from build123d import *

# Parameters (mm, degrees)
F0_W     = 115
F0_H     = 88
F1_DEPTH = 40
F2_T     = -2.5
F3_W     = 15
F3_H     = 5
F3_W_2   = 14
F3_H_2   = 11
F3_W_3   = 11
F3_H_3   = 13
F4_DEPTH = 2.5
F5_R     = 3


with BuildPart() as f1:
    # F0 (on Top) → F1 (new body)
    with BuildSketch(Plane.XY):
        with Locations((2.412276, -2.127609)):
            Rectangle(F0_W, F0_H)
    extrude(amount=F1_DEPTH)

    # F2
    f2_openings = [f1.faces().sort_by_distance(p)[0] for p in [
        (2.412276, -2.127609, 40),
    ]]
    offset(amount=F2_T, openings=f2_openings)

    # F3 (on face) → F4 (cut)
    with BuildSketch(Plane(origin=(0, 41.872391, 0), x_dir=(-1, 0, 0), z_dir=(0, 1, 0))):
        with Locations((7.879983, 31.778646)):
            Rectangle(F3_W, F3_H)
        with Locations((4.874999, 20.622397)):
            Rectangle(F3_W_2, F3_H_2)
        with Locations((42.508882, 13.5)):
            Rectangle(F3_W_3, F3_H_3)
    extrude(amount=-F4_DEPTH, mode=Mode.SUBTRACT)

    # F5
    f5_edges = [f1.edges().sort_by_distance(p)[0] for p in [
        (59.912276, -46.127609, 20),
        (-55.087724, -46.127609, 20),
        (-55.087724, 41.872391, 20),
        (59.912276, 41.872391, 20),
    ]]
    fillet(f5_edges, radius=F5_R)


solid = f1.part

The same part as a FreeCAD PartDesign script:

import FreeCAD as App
import Part
import Sketcher
from FreeCAD import Vector
Q = App.Units.Quantity


def edges_at(feature, points):
    """Names of the edges that pass closest to the given points."""
    edges = feature.Shape.Edges
    near = lambda p: min(range(len(edges)), key=lambda i: edges[i].distToShape(Part.Vertex(*p))[0])
    return sorted({f"Edge{near(p) + 1}" for p in points})


def faces_at(feature, points):
    """Names of the faces that lie closest to the given points."""
    faces = feature.Shape.Faces
    near = lambda p: min(range(len(faces)), key=lambda i: faces[i].distToShape(Part.Vertex(*p))[0])
    return sorted({f"Face{near(p) + 1}" for p in points})

doc = App.newDocument("Part")
body = doc.addObject("PartDesign::Body", "Body")

sketch1 = body.newObject("Sketcher::SketchObject", "Sketch")
sketch1.AttachmentSupport = (doc.getObject("XY_Plane"), [""])
sketch1.MapMode = "FlatFace"
sketch1.addGeometry([
    Part.LineSegment(Vector(-55, 42, 0), Vector(-55, -46, 0)),
    Part.LineSegment(Vector(-55, -46, 0), Vector(60, -46, 0)),
    Part.LineSegment(Vector(60, -46, 0), Vector(60, 42, 0)),
    Part.LineSegment(Vector(60, 42, 0), Vector(-55, 42, 0)),
], False)
sketch1.addConstraint([
    Sketcher.Constraint("Coincident", 0, 2, 1, 1),
    Sketcher.Constraint("Coincident", 1, 2, 2, 1),
    Sketcher.Constraint("Coincident", 2, 2, 3, 1),
    Sketcher.Constraint("Coincident", 3, 2, 0, 1),
    Sketcher.Constraint("Vertical", 0),
    Sketcher.Constraint("Horizontal", 1),
    Sketcher.Constraint("Vertical", 2),
    Sketcher.Constraint("Horizontal", 3),
    Sketcher.Constraint("DistanceX", 1, 1, 1, 2, Q("115 mm")),
    Sketcher.Constraint("DistanceY", 0, 2, 0, 1, Q("88 mm")),
    Sketcher.Constraint("DistanceY", 0, 2, -1, 1, Q("46.127609 mm")),
    Sketcher.Constraint("DistanceX", 0, 2, -1, 1, Q("55.087724 mm")),
])
pad1 = body.newObject("PartDesign::Pad", "Pad")
pad1.Profile = sketch1
pad1.Length = 40
doc.recompute()

thickness = body.newObject("PartDesign::Thickness", "Thickness")
thickness.Base = (pad1, faces_at(pad1, [(2.412, -2.128, 40)]))
thickness.Value = 2.5
thickness.Reversed = True
thickness.Join = "Arc"

sketch2 = body.newObject("Sketcher::SketchObject", "Sketch001")
sketch2.AttachmentSupport = (doc.getObject("XZ_Plane"), [""])
sketch2.MapMode = "FlatFace"
sketch2.AttachmentOffset = App.Placement(Vector(0, 0, -41.872391), App.Rotation())
sketch2.addGeometry([
    Part.LineSegment(Vector(0, 34, 0), Vector(0, 29, 0)),
    Part.LineSegment(Vector(0, 29, 0), Vector(-15, 29, 0)),
    Part.LineSegment(Vector(-15, 29, 0), Vector(-15, 34, 0)),
    Part.LineSegment(Vector(-15, 34, 0), Vector(0, 34, 0)),
    Part.LineSegment(Vector(2, 26, 0), Vector(2, 15, 0)),
    Part.LineSegment(Vector(2, 15, 0), Vector(-12, 15, 0)),
    Part.LineSegment(Vector(-12, 15, 0), Vector(-12, 26, 0)),
    Part.LineSegment(Vector(-12, 26, 0), Vector(2, 26, 0)),
    Part.LineSegment(Vector(-37, 20, 0), Vector(-37, 7, 0)),
    Part.LineSegment(Vector(-37, 7, 0), Vector(-48, 7, 0)),
    Part.LineSegment(Vector(-48, 7, 0), Vector(-48, 20, 0)),
    Part.LineSegment(Vector(-48, 20, 0), Vector(-37, 20, 0)),
], False)
sketch2.addConstraint([
    Sketcher.Constraint("Coincident", 0, 2, 1, 1),
    Sketcher.Constraint("Coincident", 1, 2, 2, 1),
    Sketcher.Constraint("Coincident", 2, 2, 3, 1),
    Sketcher.Constraint("Coincident", 3, 2, 0, 1),
    Sketcher.Constraint("Coincident", 4, 2, 5, 1),
    Sketcher.Constraint("Coincident", 5, 2, 6, 1),
    Sketcher.Constraint("Coincident", 6, 2, 7, 1),
    Sketcher.Constraint("Coincident", 7, 2, 4, 1),
    Sketcher.Constraint("Coincident", 8, 2, 9, 1),
    Sketcher.Constraint("Coincident", 9, 2, 10, 1),
    Sketcher.Constraint("Coincident", 10, 2, 11, 1),
    Sketcher.Constraint("Coincident", 11, 2, 8, 1),
    Sketcher.Constraint("Vertical", 0),
    Sketcher.Constraint("Horizontal", 1),
    Sketcher.Constraint("Vertical", 2),
    Sketcher.Constraint("Horizontal", 3),
    Sketcher.Constraint("Vertical", 4),
    Sketcher.Constraint("Horizontal", 5),
    Sketcher.Constraint("Vertical", 6),
    Sketcher.Constraint("Horizontal", 7),
    Sketcher.Constraint("Vertical", 8),
    Sketcher.Constraint("Horizontal", 9),
    Sketcher.Constraint("Vertical", 10),
    Sketcher.Constraint("Horizontal", 11),
    Sketcher.Constraint("Equal", 11, 4),
    Sketcher.Constraint("DistanceX", 1, 2, 1, 1, Q("15 mm")),
    Sketcher.Constraint("DistanceX", 5, 2, 5, 1, Q("14 mm")),
    Sketcher.Constraint("DistanceX", 9, 2, 9, 1, Q("11 mm")),
    Sketcher.Constraint("DistanceY", 0, 2, 0, 1, Q("5 mm")),
    Sketcher.Constraint("DistanceY", 8, 2, 8, 1, Q("13 mm")),
    Sketcher.Constraint("DistanceY", -1, 1, 8, 2, Q("7 mm")),
    Sketcher.Constraint("DistanceX", -1, 1, 4, 2, Q("2.125001 mm")),
    Sketcher.Constraint("DistanceX", 8, 2, 1, 2, Q("21.628899 mm")),
    Sketcher.Constraint("DistanceY", 4, 2, 0, 2, Q("14.156249 mm")),
    Sketcher.Constraint("DistanceX", 0, 2, -1, 1, Q("0.379983 mm")),
    Sketcher.Constraint("DistanceY", -1, 1, 0, 2, Q("29.278646 mm")),
])
pocket1 = body.newObject("PartDesign::Pocket", "Pocket")
pocket1.Profile = sketch2
pocket1.Length = 2.5
pocket1.Reversed = True
doc.recompute()

fillet = body.newObject("PartDesign::Fillet", "Fillet")
fillet.Base = (pocket1, edges_at(pocket1, [
    (59.912, -46.128, 20),
    (-55.088, -46.128, 20),
    (-55.088, 41.872, 20),
    (59.912, 41.872, 20),
]))
fillet.Radius = 3

doc.recompute()
